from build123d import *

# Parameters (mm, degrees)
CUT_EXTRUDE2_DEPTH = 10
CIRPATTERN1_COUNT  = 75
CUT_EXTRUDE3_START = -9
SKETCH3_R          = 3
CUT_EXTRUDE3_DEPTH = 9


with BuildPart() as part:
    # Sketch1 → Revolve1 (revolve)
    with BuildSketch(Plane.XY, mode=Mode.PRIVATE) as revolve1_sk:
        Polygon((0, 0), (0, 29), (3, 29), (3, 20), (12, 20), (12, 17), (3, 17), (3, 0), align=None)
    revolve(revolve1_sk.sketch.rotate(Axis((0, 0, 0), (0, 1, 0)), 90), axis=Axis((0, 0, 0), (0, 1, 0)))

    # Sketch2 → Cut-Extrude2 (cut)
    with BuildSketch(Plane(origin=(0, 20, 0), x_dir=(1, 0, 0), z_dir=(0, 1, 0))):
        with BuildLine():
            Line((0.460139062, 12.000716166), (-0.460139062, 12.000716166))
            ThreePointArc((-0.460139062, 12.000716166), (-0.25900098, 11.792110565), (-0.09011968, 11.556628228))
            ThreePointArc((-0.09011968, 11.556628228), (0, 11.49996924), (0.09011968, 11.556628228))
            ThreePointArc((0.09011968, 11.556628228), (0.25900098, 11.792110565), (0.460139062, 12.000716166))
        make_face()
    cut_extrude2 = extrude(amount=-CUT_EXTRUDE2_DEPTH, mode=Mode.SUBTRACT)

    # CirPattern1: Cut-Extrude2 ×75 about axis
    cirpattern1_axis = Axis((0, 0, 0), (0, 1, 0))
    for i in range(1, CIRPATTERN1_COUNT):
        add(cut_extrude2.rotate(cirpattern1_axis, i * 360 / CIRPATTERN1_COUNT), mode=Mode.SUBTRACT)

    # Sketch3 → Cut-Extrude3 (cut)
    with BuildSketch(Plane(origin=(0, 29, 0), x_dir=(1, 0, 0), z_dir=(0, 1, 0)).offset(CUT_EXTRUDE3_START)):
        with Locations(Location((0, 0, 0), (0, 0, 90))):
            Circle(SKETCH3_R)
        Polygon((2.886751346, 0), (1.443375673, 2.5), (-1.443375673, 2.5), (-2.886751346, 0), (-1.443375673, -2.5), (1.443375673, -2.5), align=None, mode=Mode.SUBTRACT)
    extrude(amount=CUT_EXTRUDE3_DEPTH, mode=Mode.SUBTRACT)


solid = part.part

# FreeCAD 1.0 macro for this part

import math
import FreeCAD as App
import Part
import Sketcher

V = App.Vector
Q = App.Units.Quantity


def add_polygon(sketch, points):
    """Adds a closed chain of lines whose ends are joined by coincident constraints."""
    first, n = sketch.GeometryCount, len(points)
    for a, b in zip(points, points[1:] + points[:1]):
        sketch.addGeometry(Part.LineSegment(App.Vector(*a, 0), App.Vector(*b, 0)), False)
    for i in range(n):
        sketch.addConstraint(Sketcher.Constraint("Coincident", first + i, 2, first + (i + 1) % n, 1))

doc = App.newDocument("Part")
params = doc.addObject("Spreadsheet::Sheet", "Params")
for row, (alias, value) in enumerate([
    ("sketch1_width", "3 mm"),
    ("sketch1_width2", "9 mm"),
    ("sketch1_height", "29 mm"),
    ("revolution_angle", "360 deg"),
    ("sketch2_radius", "2 mm"),
    ("sketch2_radius2", "0.1 mm"),
    ("pocket1_length", "10 mm"),
    ("sketch3_diameter", "6 mm"),
    ("pocket2_length", "9 mm"),
], start=1):
    params.set(f"A{row}", alias)
    params.set(f"B{row}", "=" + value)
    params.setAlias(f"B{row}", alias)

body = doc.addObject("PartDesign::Body", "Body")

# Sketch on XY plane
sketch1 = body.newObject("Sketcher::SketchObject", "Sketch")
sketch1.AttachmentSupport = (doc.getObject("XY_Plane"), [""])
sketch1.MapMode = "FlatFace"
add_polygon(sketch1, [(0, 29), (0, 0), (3, 0), (3, 17), (12, 17), (12, 20), (3, 20), (3, 29)])  # lines 0-7
sketch1.addConstraint([
    Sketcher.Constraint("Vertical", 0),
    Sketcher.Constraint("Horizontal", 1),
    Sketcher.Constraint("Vertical", 2),
    Sketcher.Constraint("Horizontal", 3),
    Sketcher.Constraint("Vertical", 4),
    Sketcher.Constraint("Horizontal", 5),
    Sketcher.Constraint("Vertical", 6),
    Sketcher.Constraint("Horizontal", 7),
    Sketcher.Constraint("Coincident", 0, 2, -1, 1),
    Sketcher.Constraint("Vertical", 2, 2, 5, 2),
    Sketcher.Constraint("Equal", 7, 4),
    Sketcher.Constraint("Equal", 5, 6),
    Sketcher.Constraint("DistanceX", 1, 1, 1, 2, 3.0),
    Sketcher.Constraint("DistanceX", 3, 1, 3, 2, 9.0),
    Sketcher.Constraint("DistanceY", 0, 2, 0, 1, 29.0),
])
sketch1.setExpression("Constraints[20]", "Params.sketch1_width")
sketch1.setExpression("Constraints[21]", "Params.sketch1_width2")
sketch1.setExpression("Constraints[22]", "Params.sketch1_height")
revolution = body.newObject("PartDesign::Revolution", "Revolution")
revolution.Profile = sketch1
revolution.ReferenceAxis = (sketch1, ["V_Axis"])
revolution.setExpression("Angle", "Params.revolution_angle")

# Sketch on XZ plane
sketch2 = body.newObject("Sketcher::SketchObject", "Sketch001")
sketch2.AttachmentSupport = (doc.getObject("XZ_Plane"), [""])
sketch2.MapMode = "FlatFace"
sketch2.AttachmentOffset = App.Placement(V(0, 0, -20), App.Rotation())
sketch2.addGeometry([
    Part.LineSegment(V(0.460139, -12.000716, 0), V(-0.460139, -12.000716, 0)),
    Part.ArcOfCircle(Part.Circle(V(-1.795535, -10.511852, 0), V(0, 0, 1), 2), math.radians(-48.11035), math.radians(-31.492584)),
    Part.ArcOfCircle(Part.Circle(V(0, -11.599969, 0), V(0, 0, 1), 0.1), math.radians(25.68417), math.radians(154.31583)),
    Part.ArcOfCircle(Part.Circle(V(1.795535, -10.511852, 0), V(0, 0, 1), 2), math.radians(-148.507416), math.radians(-131.88965)),
], False)
sketch2.addConstraint([
    Sketcher.Constraint("Coincident", 0, 2, 1, 1),
    Sketcher.Constraint("Coincident", 1, 2, 2, 2),
    Sketcher.Constraint("Coincident", 2, 1, 3, 1),
    Sketcher.Constraint("Coincident", 3, 2, 0, 1),
    Sketcher.Constraint("Horizontal", 0),
    Sketcher.Constraint("Equal", 1, 3),
    Sketcher.Constraint("Symmetric", 1, 3, 3, 3, -2),
    Sketcher.Constraint("PointOnObject", 2, 3, -2),
    Sketcher.Constraint("Radius", 1, 2.0),
    Sketcher.Constraint("Radius", 2, 0.1),
    Sketcher.Constraint("DistanceX", 0, 2, 0, 1, 0.920278),
    Sketcher.Constraint("DistanceY", 1, 3, -1, 1, 10.511852),
    Sketcher.Constraint("DistanceY", 2, 3, -1, 1, 11.599969),
    Sketcher.Constraint("DistanceX", 1, 2, -1, 1, 0.09012),
])
sketch2.setExpression("Constraints[8]", "Params.sketch2_radius")
sketch2.setExpression("Constraints[9]", "Params.sketch2_radius2")
pocket1 = body.newObject("PartDesign::Pocket", "Pocket")
pocket1.Profile = sketch2
pocket1.setExpression("Length", "Params.pocket1_length")
pocket1.Reversed = True
doc.recompute()

polarpattern = body.newObject("PartDesign::PolarPattern", "PolarPattern")
polarpattern.Originals = [pocket1]
polarpattern.Axis = (doc.getObject("Y_Axis"), [""])
polarpattern.Angle = 360
polarpattern.Occurrences = 75
body.Tip = polarpattern

# Sketch on XZ plane
sketch3 = body.newObject("Sketcher::SketchObject", "Sketch002")
sketch3.AttachmentSupport = (doc.getObject("XZ_Plane"), [""])
sketch3.MapMode = "FlatFace"
sketch3.AttachmentOffset = App.Placement(V(0, 0, -20), App.Rotation())
sketch3.addGeometry(Part.Circle(V(0, 0, 0), V(0, 0, 1), 3), False)  # 0
add_polygon(sketch3, [(1.443376, -2.5), (2.886751, 0), (1.443376, 2.5), (-1.443376, 2.5), (-2.886751, 0), (-1.443376, -2.5)])  # lines 1-6
sketch3.addConstraint([
    Sketcher.Constraint("Horizontal", 3),
    Sketcher.Constraint("Horizontal", 6),
    Sketcher.Constraint("Coincident", 0, 3, -1, 1),
    Sketcher.Constraint("Symmetric", 1, 2, 4, 2, -1, 1),
    Sketcher.Constraint("Symmetric", 2, 2, 5, 2, -1, 1),
    Sketcher.Constraint("PointOnObject", 1, 2, -1),
    Sketcher.Constraint("Parallel", 1, 4),
    Sketcher.Constraint("Vertical", 3, 2, 5, 2),
    Sketcher.Constraint("Diameter", 0, 6.0),
    Sketcher.Constraint("Angle", 1, Q("60 deg")),
    Sketcher.Constraint("DistanceY", 5, 2, 3, 2, 5.0),
    Sketcher.Constraint("DistanceX", 3, 2, 3, 1, 2.886751),
])
sketch3.setExpression("Constraints[14]", "Params.sketch3_diameter")
pocket2 = body.newObject("PartDesign::Pocket", "Pocket001")
pocket2.Profile = sketch3
pocket2.setExpression("Length", "Params.pocket2_length")

doc.recompute()
